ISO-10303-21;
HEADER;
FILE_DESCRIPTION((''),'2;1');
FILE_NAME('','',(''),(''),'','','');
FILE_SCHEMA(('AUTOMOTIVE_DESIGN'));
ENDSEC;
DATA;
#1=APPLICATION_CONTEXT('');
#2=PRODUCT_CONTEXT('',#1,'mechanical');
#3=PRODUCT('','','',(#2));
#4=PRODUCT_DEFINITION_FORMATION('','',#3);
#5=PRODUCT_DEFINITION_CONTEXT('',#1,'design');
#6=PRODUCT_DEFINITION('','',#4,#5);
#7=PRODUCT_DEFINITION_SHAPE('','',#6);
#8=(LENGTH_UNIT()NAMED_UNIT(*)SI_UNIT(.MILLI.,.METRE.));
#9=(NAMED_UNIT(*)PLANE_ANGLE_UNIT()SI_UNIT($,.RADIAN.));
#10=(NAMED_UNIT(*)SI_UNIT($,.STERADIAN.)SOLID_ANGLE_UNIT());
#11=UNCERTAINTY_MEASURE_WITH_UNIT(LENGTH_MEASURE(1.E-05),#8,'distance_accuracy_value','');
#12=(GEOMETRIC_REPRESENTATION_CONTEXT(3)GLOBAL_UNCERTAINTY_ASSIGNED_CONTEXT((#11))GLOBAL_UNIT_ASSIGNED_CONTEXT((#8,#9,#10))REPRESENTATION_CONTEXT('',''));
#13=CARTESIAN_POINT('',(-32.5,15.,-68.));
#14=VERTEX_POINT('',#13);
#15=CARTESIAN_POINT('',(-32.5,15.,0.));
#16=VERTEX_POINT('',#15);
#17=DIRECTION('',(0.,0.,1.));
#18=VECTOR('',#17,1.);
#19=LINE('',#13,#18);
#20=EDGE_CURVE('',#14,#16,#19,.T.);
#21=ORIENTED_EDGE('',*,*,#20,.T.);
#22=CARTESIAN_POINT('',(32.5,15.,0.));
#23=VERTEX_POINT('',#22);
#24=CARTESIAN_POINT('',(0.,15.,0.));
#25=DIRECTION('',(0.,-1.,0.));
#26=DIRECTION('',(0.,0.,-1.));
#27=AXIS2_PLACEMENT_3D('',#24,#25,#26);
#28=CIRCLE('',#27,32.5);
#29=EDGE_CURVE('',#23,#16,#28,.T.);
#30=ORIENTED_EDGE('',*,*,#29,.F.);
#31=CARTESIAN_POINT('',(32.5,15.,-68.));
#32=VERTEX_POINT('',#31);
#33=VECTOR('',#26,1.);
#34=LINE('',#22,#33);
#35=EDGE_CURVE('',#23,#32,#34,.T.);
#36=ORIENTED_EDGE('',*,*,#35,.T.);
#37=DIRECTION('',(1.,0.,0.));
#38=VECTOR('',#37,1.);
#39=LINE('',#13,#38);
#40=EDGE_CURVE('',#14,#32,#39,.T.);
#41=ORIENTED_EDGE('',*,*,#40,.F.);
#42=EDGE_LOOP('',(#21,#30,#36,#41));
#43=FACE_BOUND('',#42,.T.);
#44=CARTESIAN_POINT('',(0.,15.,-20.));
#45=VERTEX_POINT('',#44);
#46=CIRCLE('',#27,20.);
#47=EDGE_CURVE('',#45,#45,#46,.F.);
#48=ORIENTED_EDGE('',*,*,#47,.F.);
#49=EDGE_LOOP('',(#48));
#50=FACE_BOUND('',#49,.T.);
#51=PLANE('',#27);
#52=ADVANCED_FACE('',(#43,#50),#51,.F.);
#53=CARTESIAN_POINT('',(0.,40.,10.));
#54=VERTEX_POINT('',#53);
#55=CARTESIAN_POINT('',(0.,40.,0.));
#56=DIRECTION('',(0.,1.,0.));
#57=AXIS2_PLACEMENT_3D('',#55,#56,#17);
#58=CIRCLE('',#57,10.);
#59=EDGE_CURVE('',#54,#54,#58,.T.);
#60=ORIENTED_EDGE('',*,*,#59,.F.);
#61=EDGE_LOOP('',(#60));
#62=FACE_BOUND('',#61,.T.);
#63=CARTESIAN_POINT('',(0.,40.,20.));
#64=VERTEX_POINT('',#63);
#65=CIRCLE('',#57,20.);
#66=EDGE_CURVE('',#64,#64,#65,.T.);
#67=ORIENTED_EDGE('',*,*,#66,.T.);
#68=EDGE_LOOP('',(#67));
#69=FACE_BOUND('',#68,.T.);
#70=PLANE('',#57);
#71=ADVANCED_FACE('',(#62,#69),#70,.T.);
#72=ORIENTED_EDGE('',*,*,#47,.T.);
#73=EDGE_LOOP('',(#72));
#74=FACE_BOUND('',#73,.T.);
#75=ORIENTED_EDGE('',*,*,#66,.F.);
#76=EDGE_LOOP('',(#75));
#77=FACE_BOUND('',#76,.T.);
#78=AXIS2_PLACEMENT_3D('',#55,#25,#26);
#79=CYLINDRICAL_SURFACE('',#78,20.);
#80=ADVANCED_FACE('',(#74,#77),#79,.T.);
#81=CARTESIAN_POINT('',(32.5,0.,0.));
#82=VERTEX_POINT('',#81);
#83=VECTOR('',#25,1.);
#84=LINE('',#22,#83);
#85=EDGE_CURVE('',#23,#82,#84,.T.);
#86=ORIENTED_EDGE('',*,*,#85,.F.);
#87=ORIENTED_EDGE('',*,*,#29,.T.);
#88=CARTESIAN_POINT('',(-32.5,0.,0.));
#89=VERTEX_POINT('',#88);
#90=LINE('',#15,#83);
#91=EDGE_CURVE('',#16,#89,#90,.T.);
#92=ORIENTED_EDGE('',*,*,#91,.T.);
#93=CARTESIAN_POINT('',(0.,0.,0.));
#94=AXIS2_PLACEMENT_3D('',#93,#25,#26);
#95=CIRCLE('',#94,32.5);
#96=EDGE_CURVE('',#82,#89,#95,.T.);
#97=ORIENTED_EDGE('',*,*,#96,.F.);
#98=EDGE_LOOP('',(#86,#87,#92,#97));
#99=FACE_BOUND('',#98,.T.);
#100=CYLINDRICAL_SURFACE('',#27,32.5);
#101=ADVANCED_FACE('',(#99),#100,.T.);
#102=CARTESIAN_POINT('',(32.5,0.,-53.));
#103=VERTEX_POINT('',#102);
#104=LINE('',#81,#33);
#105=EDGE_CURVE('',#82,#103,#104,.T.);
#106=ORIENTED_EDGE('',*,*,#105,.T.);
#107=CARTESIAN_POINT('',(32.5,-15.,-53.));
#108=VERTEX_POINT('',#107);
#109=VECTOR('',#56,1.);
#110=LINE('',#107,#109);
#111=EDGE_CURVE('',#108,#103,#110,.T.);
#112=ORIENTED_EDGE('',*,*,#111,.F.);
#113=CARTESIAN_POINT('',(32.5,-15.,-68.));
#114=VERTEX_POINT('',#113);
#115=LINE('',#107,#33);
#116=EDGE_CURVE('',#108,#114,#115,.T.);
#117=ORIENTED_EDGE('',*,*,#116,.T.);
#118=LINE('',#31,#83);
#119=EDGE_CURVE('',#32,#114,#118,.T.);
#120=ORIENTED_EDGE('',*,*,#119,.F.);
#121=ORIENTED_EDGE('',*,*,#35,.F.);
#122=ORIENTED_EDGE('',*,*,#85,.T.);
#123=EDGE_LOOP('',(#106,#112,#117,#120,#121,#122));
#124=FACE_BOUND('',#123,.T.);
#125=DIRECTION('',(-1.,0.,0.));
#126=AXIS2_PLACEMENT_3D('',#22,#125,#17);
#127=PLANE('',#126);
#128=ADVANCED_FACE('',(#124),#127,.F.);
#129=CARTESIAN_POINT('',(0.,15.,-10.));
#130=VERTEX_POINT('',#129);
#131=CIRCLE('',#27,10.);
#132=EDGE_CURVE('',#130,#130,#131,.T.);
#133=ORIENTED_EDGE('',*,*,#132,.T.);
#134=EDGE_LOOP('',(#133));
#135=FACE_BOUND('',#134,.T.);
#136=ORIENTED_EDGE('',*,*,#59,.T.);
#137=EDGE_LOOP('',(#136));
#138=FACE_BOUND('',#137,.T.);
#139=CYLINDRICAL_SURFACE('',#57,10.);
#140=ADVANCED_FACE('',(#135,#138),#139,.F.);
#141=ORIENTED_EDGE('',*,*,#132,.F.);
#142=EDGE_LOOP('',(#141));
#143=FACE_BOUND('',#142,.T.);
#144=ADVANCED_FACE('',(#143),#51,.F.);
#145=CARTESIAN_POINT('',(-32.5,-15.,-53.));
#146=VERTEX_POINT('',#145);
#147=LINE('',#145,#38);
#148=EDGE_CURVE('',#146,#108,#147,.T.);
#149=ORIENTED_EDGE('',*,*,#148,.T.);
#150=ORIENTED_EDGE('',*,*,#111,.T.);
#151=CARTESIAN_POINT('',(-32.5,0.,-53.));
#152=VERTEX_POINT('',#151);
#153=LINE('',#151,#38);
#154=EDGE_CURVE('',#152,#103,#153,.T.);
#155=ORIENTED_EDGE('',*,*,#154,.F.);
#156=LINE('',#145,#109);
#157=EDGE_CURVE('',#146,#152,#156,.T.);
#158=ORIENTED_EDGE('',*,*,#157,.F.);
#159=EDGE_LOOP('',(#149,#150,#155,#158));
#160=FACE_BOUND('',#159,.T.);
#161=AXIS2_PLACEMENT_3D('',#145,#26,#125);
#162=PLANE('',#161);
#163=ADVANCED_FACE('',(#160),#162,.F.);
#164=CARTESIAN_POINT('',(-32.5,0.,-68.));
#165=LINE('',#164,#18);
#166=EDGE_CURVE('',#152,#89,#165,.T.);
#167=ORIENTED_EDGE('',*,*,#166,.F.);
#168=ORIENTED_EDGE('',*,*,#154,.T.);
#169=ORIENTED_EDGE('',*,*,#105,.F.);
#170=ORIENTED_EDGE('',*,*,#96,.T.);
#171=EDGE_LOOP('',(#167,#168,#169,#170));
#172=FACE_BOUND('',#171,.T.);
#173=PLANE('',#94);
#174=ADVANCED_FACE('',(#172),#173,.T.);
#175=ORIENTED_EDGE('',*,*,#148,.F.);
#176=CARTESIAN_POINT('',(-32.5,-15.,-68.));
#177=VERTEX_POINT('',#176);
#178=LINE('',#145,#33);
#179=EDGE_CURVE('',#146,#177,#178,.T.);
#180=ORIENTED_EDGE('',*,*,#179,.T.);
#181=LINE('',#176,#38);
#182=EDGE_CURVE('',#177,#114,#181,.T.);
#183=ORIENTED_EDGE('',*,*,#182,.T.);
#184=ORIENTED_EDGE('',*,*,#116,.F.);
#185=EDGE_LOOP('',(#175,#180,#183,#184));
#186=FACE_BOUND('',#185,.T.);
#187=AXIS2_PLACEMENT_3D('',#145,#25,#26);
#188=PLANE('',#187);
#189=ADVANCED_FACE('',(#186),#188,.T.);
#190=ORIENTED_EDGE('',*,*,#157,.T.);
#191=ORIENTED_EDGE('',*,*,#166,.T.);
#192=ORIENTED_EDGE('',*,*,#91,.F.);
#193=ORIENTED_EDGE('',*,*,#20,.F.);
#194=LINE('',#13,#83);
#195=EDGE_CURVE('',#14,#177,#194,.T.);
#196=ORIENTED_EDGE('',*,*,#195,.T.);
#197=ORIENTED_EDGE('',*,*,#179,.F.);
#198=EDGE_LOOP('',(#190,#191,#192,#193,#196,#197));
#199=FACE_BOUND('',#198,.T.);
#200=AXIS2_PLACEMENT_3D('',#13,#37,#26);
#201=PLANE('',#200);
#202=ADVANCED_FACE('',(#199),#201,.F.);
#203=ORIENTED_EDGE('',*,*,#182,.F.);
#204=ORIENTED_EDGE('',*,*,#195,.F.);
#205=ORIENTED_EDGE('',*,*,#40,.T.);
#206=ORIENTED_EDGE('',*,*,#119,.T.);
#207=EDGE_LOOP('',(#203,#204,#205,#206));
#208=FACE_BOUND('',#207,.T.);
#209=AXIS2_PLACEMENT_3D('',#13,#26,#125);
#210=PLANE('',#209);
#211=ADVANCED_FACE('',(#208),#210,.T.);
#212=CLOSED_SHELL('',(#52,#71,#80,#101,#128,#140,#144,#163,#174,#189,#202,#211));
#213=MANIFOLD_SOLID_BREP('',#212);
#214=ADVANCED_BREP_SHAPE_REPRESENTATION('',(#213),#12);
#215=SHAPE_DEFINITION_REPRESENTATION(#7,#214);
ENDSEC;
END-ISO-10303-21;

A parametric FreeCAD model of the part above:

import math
import FreeCAD as App
import Part
import Sketcher

V = App.Vector


def add_polygon(sketch, points):
    """Adds a closed chain of lines whose ends are joined by coincident constraints."""
    first, n = sketch.GeometryCount, len(points)
    for a, b in zip(points, points[1:] + points[:1]):
        sketch.addGeometry(Part.LineSegment(App.Vector(*a, 0), App.Vector(*b, 0)), False)
    for i in range(n):
        sketch.addConstraint(Sketcher.Constraint("Coincident", first + i, 2, first + (i + 1) % n, 1))

doc = App.newDocument("Part")
body = doc.addObject("PartDesign::Body", "Body")

sketch1 = body.newObject("Sketcher::SketchObject", "Sketch")
sketch1.AttachmentSupport = (doc.getObject("XZ_Plane"), [""])
sketch1.MapMode = "FlatFace"
sketch1.addGeometry([
    Part.LineSegment(V(32, 0, 0), V(32, -68, 0)),
    Part.LineSegment(V(32, -68, 0), V(-32, -68, 0)),
    Part.LineSegment(V(-32, -68, 0), V(-32, 0, 0)),
    Part.ArcOfCircle(Part.Circle(V(0, 0, 0), V(0, 0, 1), 32), math.radians(0), math.radians(180)),
], False)
sketch1.addConstraint([
    Sketcher.Constraint("Coincident", 0, 2, 1, 1),
    Sketcher.Constraint("Coincident", 1, 2, 2, 1),
    Sketcher.Constraint("Tangent", 2, 2, 3, 2),
    Sketcher.Constraint("Tangent", 3, 1, 0, 1),
    Sketcher.Constraint("Vertical", 0),
    Sketcher.Constraint("Horizontal", 1),
    Sketcher.Constraint("Vertical", 2),
    Sketcher.Constraint("Coincident", 3, 3, -1, 1),
    Sketcher.Constraint("Radius", 3, 32.5),
    Sketcher.Constraint("DistanceY", 0, 2, 0, 1, 68.0),
])
pad1 = body.newObject("PartDesign::Pad", "Pad")
pad1.Profile = sketch1
pad1.Length = 15
pad1.Reversed = True

sketch2 = body.newObject("Sketcher::SketchObject", "Sketch001")
sketch2.AttachmentSupport = (doc.getObject("YZ_Plane"), [""])
sketch2.MapMode = "FlatFace"
sketch2.AttachmentOffset = App.Placement(V(0, 0, 32.5), App.Rotation())
add_polygon(sketch2, [(0, -53), (-15, -53), (-15, -68), (0, -68)])
sketch2.addConstraint([
    Sketcher.Constraint("Horizontal", 0),
    Sketcher.Constraint("Vertical", 1),
    Sketcher.Constraint("Horizontal", 2),
    Sketcher.Constraint("Vertical", 3),
    Sketcher.Constraint("PointOnObject", 2, 2, -2),
    Sketcher.Constraint("Equal", 2, 1),
    Sketcher.Constraint("DistanceX", 0, 2, 0, 1, 15.0),
    Sketcher.Constraint("DistanceY", 0, 2, -1, 1, 53.0),
])
pad2 = body.newObject("PartDesign::Pad", "Pad001")
pad2.Profile = sketch2
pad2.Length = 65
pad2.Reversed = True

sketch3 = body.newObject("Sketcher::SketchObject", "Sketch002")
sketch3.AttachmentSupport = (doc.getObject("XZ_Plane"), [""])
sketch3.MapMode = "FlatFace"
sketch3.AttachmentOffset = App.Placement(V(0, 0, -15), App.Rotation())
sketch3.addGeometry(Part.Circle(V(0, 0, 0), V(0, 0, 1), 20), False)
sketch3.addConstraint([
    Sketcher.Constraint("Coincident", 0, 3, -1, 1),
    Sketcher.Constraint("Diameter", 0, 40.0),
])
pad3 = body.newObject("PartDesign::Pad", "Pad002")
pad3.Profile = sketch3
pad3.Length = 25
pad3.Reversed = True

sketch4 = body.newObject("Sketcher::SketchObject", "Sketch003")
sketch4.AttachmentSupport = (doc.getObject("XZ_Plane"), [""])
sketch4.MapMode = "FlatFace"
sketch4.AttachmentOffset = App.Placement(V(0, 0, -40), App.Rotation())
sketch4.addGeometry(Part.Circle(V(0, 0, 0), V(0, 0, 1), 10), False)
sketch4.addConstraint([
    Sketcher.Constraint("Coincident", 0, 3, -1, 1),
    Sketcher.Constraint("Diameter", 0, 20.0),
])
doc.recompute()
hole = body.newObject("PartDesign::Hole", "Hole")
hole.Profile = sketch4
hole.ThreadType = "None"
hole.Diameter = 20
hole.DepthType = "Dimension"
hole.Depth = 25
hole.DrillPoint = "Flat"
hole.Reversed = True

doc.recompute()
